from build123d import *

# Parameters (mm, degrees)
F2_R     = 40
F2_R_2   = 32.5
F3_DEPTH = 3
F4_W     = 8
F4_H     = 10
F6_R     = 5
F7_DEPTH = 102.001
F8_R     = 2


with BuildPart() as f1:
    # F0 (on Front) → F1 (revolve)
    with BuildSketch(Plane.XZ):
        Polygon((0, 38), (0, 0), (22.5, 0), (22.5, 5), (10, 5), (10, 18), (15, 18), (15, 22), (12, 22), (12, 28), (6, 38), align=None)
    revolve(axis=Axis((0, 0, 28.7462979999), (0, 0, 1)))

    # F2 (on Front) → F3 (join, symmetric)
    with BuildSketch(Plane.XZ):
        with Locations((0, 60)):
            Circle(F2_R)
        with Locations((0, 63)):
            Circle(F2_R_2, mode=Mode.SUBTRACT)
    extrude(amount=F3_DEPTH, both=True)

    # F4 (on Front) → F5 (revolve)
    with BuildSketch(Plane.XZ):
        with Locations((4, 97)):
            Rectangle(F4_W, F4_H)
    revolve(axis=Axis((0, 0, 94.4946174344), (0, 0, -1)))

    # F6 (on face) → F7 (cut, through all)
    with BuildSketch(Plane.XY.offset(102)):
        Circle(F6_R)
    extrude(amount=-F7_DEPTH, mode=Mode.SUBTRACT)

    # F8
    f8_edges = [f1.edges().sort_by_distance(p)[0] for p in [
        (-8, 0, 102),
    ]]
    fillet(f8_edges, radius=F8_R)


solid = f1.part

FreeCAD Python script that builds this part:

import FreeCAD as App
import Part
import Sketcher
Q = App.Units.Quantity


def edges_at(feature, points):
    """Names of the edges that pass closest to the given points."""
    edges = feature.Shape.Edges
    near = lambda p: min(range(len(edges)), key=lambda i: edges[i].distToShape(Part.Vertex(*p))[0])
    return sorted({f"Edge{near(p) + 1}" for p in points})

doc = App.newDocument("Part")
body = doc.addObject("PartDesign::Body", "Body")

# Sketch on XZ plane
sketch1 = body.newObject("Sketcher::SketchObject", "Sketch")
sketch1.AttachmentSupport = (doc.getObject("XZ_Plane"), [""])
sketch1.MapMode = "FlatFace"
sketch1.addGeometry([
    Part.LineSegment(App.Vector(0, 38, 0), App.Vector(0, 0, 0)),  # 0
    Part.LineSegment(App.Vector(0, 0, 0), App.Vector(22.5, 0, 0)),  # 1
    Part.LineSegment(App.Vector(22.5, 0, 0), App.Vector(22.5, 5, 0)),  # 2
    Part.LineSegment(App.Vector(22.5, 5, 0), App.Vector(10, 5, 0)),  # 3
    Part.LineSegment(App.Vector(10, 5, 0), App.Vector(10, 18, 0)),  # 4
    Part.LineSegment(App.Vector(10, 18, 0), App.Vector(15, 18, 0)),  # 5
    Part.LineSegment(App.Vector(15, 18, 0), App.Vector(15, 22, 0)),  # 6
    Part.LineSegment(App.Vector(15, 22, 0), App.Vector(12, 22, 0)),  # 7
    Part.LineSegment(App.Vector(12, 22, 0), App.Vector(12, 28, 0)),  # 8
    Part.LineSegment(App.Vector(12, 28, 0), App.Vector(6, 38, 0)),  # 9
    Part.LineSegment(App.Vector(6, 38, 0), App.Vector(0, 38, 0)),  # 10
], False)
sketch1.addConstraint([
    Sketcher.Constraint("Coincident", 0, 2, 1, 1),
    Sketcher.Constraint("Coincident", 1, 2, 2, 1),
    Sketcher.Constraint("Coincident", 2, 2, 3, 1),
    Sketcher.Constraint("Coincident", 3, 2, 4, 1),
    Sketcher.Constraint("Coincident", 4, 2, 5, 1),
    Sketcher.Constraint("Coincident", 5, 2, 6, 1),
    Sketcher.Constraint("Coincident", 6, 2, 7, 1),
    Sketcher.Constraint("Coincident", 7, 2, 8, 1),
    Sketcher.Constraint("Coincident", 8, 2, 9, 1),
    Sketcher.Constraint("Coincident", 9, 2, 10, 1),
    Sketcher.Constraint("Coincident", 10, 2, 0, 1),
    Sketcher.Constraint("Vertical", 0),
    Sketcher.Constraint("Horizontal", 1),
    Sketcher.Constraint("Vertical", 2),
    Sketcher.Constraint("Horizontal", 3),
    Sketcher.Constraint("Vertical", 4),
    Sketcher.Constraint("Horizontal", 5),
    Sketcher.Constraint("Vertical", 6),
    Sketcher.Constraint("Horizontal", 7),
    Sketcher.Constraint("Vertical", 8),
    Sketcher.Constraint("Horizontal", 10),
    Sketcher.Constraint("Coincident", 0, 2, -1, 1),
    Sketcher.Constraint("Equal", 5, 2),
    Sketcher.Constraint("Equal", 10, 8),
    Sketcher.Constraint("DistanceX", 5, 1, 5, 2, Q("5 mm")),
    Sketcher.Constraint("DistanceX", 7, 2, 7, 1, Q("3 mm")),
    Sketcher.Constraint("DistanceX", 10, 2, 10, 1, Q("6 mm")),
    Sketcher.Constraint("DistanceY", 0, 2, 0, 1, Q("38 mm")),
    Sketcher.Constraint("DistanceY", 4, 1, 4, 2, Q("13 mm")),
    Sketcher.Constraint("DistanceY", 6, 1, 6, 2, Q("4 mm")),
    Sketcher.Constraint("DistanceX", 1, 1, 1, 2, Q("22.5 mm")),
    Sketcher.Constraint("DistanceX", 3, 2, 3, 1, Q("12.5 mm")),
])
revolution = body.newObject("PartDesign::Revolution", "Revolution")
revolution.Profile = sketch1
revolution.ReferenceAxis = (sketch1, ["V_Axis"])
revolution.Angle = 360

# Sketch on XZ plane
sketch2 = body.newObject("Sketcher::SketchObject", "Sketch001")
sketch2.AttachmentSupport = (doc.getObject("XZ_Plane"), [""])
sketch2.MapMode = "FlatFace"
sketch2.addGeometry([
    Part.Circle(App.Vector(0, 60, 0), App.Vector(0, 0, 1), 40),
    Part.Circle(App.Vector(0, 63, 0), App.Vector(0, 0, 1), 32.5),
], False)
sketch2.addConstraint([
    Sketcher.Constraint("PointOnObject", 0, 3, -2),
    Sketcher.Constraint("PointOnObject", 1, 3, -2),
    Sketcher.Constraint("Diameter", 0, Q("80 mm")),
    Sketcher.Constraint("Diameter", 1, Q("65 mm")),
    Sketcher.Constraint("DistanceY", -1, 1, 0, 3, Q("60 mm")),
    Sketcher.Constraint("DistanceY", -1, 1, 1, 3, Q("63 mm")),
])
pad1 = body.newObject("PartDesign::Pad", "Pad")
pad1.Profile = sketch2
pad1.Length = 6
pad1.Midplane = True

# Sketch on XZ plane
sketch3 = body.newObject("Sketcher::SketchObject", "Sketch002")
sketch3.AttachmentSupport = (doc.getObject("XZ_Plane"), [""])
sketch3.MapMode = "FlatFace"
sketch3.addGeometry([
    Part.LineSegment(App.Vector(0, 102, 0), App.Vector(0, 92, 0)),
    Part.LineSegment(App.Vector(0, 92, 0), App.Vector(8, 92, 0)),
    Part.LineSegment(App.Vector(8, 92, 0), App.Vector(8, 102, 0)),
    Part.LineSegment(App.Vector(8, 102, 0), App.Vector(0, 102, 0)),
], False)
sketch3.addConstraint([
    Sketcher.Constraint("Coincident", 0, 2, 1, 1),
    Sketcher.Constraint("Coincident", 1, 2, 2, 1),
    Sketcher.Constraint("Coincident", 2, 2, 3, 1),
    Sketcher.Constraint("Coincident", 3, 2, 0, 1),
    Sketcher.Constraint("Vertical", 0),
    Sketcher.Constraint("Horizontal", 1),
    Sketcher.Constraint("Vertical", 2),
    Sketcher.Constraint("Horizontal", 3),
    Sketcher.Constraint("PointOnObject", 0, 2, -2),
    Sketcher.Constraint("DistanceX", 1, 1, 1, 2, Q("8 mm")),
    Sketcher.Constraint("DistanceY", 0, 2, 0, 1, Q("10 mm")),
    Sketcher.Constraint("DistanceY", -1, 1, 0, 2, Q("92 mm")),
])
revolution2 = body.newObject("PartDesign::Revolution", "Revolution001")
revolution2.Profile = sketch3
revolution2.ReferenceAxis = (sketch3, ["V_Axis"])
revolution2.Angle = 360

# Sketch on XY plane
sketch4 = body.newObject("Sketcher::SketchObject", "Sketch003")
sketch4.AttachmentSupport = (doc.getObject("XY_Plane"), [""])
sketch4.MapMode = "FlatFace"
sketch4.AttachmentOffset = App.Placement(App.Vector(0, 0, 102), App.Rotation())
sketch4.addGeometry(Part.Circle(App.Vector(0, 0, 0), App.Vector(0, 0, 1), 5), False)
sketch4.addConstraint([
    Sketcher.Constraint("Coincident", 0, 3, -1, 1),
    Sketcher.Constraint("Diameter", 0, Q("10 mm")),
])
pocket1 = body.newObject("PartDesign::Pocket", "Pocket")
pocket1.Profile = sketch4
pocket1.Type = "ThroughAll"
doc.recompute()

fillet = body.newObject("PartDesign::Fillet", "Fillet")
fillet.Base = (pocket1, edges_at(pocket1, [(-8, 0, 102)]))
fillet.Radius = 2

doc.recompute()
